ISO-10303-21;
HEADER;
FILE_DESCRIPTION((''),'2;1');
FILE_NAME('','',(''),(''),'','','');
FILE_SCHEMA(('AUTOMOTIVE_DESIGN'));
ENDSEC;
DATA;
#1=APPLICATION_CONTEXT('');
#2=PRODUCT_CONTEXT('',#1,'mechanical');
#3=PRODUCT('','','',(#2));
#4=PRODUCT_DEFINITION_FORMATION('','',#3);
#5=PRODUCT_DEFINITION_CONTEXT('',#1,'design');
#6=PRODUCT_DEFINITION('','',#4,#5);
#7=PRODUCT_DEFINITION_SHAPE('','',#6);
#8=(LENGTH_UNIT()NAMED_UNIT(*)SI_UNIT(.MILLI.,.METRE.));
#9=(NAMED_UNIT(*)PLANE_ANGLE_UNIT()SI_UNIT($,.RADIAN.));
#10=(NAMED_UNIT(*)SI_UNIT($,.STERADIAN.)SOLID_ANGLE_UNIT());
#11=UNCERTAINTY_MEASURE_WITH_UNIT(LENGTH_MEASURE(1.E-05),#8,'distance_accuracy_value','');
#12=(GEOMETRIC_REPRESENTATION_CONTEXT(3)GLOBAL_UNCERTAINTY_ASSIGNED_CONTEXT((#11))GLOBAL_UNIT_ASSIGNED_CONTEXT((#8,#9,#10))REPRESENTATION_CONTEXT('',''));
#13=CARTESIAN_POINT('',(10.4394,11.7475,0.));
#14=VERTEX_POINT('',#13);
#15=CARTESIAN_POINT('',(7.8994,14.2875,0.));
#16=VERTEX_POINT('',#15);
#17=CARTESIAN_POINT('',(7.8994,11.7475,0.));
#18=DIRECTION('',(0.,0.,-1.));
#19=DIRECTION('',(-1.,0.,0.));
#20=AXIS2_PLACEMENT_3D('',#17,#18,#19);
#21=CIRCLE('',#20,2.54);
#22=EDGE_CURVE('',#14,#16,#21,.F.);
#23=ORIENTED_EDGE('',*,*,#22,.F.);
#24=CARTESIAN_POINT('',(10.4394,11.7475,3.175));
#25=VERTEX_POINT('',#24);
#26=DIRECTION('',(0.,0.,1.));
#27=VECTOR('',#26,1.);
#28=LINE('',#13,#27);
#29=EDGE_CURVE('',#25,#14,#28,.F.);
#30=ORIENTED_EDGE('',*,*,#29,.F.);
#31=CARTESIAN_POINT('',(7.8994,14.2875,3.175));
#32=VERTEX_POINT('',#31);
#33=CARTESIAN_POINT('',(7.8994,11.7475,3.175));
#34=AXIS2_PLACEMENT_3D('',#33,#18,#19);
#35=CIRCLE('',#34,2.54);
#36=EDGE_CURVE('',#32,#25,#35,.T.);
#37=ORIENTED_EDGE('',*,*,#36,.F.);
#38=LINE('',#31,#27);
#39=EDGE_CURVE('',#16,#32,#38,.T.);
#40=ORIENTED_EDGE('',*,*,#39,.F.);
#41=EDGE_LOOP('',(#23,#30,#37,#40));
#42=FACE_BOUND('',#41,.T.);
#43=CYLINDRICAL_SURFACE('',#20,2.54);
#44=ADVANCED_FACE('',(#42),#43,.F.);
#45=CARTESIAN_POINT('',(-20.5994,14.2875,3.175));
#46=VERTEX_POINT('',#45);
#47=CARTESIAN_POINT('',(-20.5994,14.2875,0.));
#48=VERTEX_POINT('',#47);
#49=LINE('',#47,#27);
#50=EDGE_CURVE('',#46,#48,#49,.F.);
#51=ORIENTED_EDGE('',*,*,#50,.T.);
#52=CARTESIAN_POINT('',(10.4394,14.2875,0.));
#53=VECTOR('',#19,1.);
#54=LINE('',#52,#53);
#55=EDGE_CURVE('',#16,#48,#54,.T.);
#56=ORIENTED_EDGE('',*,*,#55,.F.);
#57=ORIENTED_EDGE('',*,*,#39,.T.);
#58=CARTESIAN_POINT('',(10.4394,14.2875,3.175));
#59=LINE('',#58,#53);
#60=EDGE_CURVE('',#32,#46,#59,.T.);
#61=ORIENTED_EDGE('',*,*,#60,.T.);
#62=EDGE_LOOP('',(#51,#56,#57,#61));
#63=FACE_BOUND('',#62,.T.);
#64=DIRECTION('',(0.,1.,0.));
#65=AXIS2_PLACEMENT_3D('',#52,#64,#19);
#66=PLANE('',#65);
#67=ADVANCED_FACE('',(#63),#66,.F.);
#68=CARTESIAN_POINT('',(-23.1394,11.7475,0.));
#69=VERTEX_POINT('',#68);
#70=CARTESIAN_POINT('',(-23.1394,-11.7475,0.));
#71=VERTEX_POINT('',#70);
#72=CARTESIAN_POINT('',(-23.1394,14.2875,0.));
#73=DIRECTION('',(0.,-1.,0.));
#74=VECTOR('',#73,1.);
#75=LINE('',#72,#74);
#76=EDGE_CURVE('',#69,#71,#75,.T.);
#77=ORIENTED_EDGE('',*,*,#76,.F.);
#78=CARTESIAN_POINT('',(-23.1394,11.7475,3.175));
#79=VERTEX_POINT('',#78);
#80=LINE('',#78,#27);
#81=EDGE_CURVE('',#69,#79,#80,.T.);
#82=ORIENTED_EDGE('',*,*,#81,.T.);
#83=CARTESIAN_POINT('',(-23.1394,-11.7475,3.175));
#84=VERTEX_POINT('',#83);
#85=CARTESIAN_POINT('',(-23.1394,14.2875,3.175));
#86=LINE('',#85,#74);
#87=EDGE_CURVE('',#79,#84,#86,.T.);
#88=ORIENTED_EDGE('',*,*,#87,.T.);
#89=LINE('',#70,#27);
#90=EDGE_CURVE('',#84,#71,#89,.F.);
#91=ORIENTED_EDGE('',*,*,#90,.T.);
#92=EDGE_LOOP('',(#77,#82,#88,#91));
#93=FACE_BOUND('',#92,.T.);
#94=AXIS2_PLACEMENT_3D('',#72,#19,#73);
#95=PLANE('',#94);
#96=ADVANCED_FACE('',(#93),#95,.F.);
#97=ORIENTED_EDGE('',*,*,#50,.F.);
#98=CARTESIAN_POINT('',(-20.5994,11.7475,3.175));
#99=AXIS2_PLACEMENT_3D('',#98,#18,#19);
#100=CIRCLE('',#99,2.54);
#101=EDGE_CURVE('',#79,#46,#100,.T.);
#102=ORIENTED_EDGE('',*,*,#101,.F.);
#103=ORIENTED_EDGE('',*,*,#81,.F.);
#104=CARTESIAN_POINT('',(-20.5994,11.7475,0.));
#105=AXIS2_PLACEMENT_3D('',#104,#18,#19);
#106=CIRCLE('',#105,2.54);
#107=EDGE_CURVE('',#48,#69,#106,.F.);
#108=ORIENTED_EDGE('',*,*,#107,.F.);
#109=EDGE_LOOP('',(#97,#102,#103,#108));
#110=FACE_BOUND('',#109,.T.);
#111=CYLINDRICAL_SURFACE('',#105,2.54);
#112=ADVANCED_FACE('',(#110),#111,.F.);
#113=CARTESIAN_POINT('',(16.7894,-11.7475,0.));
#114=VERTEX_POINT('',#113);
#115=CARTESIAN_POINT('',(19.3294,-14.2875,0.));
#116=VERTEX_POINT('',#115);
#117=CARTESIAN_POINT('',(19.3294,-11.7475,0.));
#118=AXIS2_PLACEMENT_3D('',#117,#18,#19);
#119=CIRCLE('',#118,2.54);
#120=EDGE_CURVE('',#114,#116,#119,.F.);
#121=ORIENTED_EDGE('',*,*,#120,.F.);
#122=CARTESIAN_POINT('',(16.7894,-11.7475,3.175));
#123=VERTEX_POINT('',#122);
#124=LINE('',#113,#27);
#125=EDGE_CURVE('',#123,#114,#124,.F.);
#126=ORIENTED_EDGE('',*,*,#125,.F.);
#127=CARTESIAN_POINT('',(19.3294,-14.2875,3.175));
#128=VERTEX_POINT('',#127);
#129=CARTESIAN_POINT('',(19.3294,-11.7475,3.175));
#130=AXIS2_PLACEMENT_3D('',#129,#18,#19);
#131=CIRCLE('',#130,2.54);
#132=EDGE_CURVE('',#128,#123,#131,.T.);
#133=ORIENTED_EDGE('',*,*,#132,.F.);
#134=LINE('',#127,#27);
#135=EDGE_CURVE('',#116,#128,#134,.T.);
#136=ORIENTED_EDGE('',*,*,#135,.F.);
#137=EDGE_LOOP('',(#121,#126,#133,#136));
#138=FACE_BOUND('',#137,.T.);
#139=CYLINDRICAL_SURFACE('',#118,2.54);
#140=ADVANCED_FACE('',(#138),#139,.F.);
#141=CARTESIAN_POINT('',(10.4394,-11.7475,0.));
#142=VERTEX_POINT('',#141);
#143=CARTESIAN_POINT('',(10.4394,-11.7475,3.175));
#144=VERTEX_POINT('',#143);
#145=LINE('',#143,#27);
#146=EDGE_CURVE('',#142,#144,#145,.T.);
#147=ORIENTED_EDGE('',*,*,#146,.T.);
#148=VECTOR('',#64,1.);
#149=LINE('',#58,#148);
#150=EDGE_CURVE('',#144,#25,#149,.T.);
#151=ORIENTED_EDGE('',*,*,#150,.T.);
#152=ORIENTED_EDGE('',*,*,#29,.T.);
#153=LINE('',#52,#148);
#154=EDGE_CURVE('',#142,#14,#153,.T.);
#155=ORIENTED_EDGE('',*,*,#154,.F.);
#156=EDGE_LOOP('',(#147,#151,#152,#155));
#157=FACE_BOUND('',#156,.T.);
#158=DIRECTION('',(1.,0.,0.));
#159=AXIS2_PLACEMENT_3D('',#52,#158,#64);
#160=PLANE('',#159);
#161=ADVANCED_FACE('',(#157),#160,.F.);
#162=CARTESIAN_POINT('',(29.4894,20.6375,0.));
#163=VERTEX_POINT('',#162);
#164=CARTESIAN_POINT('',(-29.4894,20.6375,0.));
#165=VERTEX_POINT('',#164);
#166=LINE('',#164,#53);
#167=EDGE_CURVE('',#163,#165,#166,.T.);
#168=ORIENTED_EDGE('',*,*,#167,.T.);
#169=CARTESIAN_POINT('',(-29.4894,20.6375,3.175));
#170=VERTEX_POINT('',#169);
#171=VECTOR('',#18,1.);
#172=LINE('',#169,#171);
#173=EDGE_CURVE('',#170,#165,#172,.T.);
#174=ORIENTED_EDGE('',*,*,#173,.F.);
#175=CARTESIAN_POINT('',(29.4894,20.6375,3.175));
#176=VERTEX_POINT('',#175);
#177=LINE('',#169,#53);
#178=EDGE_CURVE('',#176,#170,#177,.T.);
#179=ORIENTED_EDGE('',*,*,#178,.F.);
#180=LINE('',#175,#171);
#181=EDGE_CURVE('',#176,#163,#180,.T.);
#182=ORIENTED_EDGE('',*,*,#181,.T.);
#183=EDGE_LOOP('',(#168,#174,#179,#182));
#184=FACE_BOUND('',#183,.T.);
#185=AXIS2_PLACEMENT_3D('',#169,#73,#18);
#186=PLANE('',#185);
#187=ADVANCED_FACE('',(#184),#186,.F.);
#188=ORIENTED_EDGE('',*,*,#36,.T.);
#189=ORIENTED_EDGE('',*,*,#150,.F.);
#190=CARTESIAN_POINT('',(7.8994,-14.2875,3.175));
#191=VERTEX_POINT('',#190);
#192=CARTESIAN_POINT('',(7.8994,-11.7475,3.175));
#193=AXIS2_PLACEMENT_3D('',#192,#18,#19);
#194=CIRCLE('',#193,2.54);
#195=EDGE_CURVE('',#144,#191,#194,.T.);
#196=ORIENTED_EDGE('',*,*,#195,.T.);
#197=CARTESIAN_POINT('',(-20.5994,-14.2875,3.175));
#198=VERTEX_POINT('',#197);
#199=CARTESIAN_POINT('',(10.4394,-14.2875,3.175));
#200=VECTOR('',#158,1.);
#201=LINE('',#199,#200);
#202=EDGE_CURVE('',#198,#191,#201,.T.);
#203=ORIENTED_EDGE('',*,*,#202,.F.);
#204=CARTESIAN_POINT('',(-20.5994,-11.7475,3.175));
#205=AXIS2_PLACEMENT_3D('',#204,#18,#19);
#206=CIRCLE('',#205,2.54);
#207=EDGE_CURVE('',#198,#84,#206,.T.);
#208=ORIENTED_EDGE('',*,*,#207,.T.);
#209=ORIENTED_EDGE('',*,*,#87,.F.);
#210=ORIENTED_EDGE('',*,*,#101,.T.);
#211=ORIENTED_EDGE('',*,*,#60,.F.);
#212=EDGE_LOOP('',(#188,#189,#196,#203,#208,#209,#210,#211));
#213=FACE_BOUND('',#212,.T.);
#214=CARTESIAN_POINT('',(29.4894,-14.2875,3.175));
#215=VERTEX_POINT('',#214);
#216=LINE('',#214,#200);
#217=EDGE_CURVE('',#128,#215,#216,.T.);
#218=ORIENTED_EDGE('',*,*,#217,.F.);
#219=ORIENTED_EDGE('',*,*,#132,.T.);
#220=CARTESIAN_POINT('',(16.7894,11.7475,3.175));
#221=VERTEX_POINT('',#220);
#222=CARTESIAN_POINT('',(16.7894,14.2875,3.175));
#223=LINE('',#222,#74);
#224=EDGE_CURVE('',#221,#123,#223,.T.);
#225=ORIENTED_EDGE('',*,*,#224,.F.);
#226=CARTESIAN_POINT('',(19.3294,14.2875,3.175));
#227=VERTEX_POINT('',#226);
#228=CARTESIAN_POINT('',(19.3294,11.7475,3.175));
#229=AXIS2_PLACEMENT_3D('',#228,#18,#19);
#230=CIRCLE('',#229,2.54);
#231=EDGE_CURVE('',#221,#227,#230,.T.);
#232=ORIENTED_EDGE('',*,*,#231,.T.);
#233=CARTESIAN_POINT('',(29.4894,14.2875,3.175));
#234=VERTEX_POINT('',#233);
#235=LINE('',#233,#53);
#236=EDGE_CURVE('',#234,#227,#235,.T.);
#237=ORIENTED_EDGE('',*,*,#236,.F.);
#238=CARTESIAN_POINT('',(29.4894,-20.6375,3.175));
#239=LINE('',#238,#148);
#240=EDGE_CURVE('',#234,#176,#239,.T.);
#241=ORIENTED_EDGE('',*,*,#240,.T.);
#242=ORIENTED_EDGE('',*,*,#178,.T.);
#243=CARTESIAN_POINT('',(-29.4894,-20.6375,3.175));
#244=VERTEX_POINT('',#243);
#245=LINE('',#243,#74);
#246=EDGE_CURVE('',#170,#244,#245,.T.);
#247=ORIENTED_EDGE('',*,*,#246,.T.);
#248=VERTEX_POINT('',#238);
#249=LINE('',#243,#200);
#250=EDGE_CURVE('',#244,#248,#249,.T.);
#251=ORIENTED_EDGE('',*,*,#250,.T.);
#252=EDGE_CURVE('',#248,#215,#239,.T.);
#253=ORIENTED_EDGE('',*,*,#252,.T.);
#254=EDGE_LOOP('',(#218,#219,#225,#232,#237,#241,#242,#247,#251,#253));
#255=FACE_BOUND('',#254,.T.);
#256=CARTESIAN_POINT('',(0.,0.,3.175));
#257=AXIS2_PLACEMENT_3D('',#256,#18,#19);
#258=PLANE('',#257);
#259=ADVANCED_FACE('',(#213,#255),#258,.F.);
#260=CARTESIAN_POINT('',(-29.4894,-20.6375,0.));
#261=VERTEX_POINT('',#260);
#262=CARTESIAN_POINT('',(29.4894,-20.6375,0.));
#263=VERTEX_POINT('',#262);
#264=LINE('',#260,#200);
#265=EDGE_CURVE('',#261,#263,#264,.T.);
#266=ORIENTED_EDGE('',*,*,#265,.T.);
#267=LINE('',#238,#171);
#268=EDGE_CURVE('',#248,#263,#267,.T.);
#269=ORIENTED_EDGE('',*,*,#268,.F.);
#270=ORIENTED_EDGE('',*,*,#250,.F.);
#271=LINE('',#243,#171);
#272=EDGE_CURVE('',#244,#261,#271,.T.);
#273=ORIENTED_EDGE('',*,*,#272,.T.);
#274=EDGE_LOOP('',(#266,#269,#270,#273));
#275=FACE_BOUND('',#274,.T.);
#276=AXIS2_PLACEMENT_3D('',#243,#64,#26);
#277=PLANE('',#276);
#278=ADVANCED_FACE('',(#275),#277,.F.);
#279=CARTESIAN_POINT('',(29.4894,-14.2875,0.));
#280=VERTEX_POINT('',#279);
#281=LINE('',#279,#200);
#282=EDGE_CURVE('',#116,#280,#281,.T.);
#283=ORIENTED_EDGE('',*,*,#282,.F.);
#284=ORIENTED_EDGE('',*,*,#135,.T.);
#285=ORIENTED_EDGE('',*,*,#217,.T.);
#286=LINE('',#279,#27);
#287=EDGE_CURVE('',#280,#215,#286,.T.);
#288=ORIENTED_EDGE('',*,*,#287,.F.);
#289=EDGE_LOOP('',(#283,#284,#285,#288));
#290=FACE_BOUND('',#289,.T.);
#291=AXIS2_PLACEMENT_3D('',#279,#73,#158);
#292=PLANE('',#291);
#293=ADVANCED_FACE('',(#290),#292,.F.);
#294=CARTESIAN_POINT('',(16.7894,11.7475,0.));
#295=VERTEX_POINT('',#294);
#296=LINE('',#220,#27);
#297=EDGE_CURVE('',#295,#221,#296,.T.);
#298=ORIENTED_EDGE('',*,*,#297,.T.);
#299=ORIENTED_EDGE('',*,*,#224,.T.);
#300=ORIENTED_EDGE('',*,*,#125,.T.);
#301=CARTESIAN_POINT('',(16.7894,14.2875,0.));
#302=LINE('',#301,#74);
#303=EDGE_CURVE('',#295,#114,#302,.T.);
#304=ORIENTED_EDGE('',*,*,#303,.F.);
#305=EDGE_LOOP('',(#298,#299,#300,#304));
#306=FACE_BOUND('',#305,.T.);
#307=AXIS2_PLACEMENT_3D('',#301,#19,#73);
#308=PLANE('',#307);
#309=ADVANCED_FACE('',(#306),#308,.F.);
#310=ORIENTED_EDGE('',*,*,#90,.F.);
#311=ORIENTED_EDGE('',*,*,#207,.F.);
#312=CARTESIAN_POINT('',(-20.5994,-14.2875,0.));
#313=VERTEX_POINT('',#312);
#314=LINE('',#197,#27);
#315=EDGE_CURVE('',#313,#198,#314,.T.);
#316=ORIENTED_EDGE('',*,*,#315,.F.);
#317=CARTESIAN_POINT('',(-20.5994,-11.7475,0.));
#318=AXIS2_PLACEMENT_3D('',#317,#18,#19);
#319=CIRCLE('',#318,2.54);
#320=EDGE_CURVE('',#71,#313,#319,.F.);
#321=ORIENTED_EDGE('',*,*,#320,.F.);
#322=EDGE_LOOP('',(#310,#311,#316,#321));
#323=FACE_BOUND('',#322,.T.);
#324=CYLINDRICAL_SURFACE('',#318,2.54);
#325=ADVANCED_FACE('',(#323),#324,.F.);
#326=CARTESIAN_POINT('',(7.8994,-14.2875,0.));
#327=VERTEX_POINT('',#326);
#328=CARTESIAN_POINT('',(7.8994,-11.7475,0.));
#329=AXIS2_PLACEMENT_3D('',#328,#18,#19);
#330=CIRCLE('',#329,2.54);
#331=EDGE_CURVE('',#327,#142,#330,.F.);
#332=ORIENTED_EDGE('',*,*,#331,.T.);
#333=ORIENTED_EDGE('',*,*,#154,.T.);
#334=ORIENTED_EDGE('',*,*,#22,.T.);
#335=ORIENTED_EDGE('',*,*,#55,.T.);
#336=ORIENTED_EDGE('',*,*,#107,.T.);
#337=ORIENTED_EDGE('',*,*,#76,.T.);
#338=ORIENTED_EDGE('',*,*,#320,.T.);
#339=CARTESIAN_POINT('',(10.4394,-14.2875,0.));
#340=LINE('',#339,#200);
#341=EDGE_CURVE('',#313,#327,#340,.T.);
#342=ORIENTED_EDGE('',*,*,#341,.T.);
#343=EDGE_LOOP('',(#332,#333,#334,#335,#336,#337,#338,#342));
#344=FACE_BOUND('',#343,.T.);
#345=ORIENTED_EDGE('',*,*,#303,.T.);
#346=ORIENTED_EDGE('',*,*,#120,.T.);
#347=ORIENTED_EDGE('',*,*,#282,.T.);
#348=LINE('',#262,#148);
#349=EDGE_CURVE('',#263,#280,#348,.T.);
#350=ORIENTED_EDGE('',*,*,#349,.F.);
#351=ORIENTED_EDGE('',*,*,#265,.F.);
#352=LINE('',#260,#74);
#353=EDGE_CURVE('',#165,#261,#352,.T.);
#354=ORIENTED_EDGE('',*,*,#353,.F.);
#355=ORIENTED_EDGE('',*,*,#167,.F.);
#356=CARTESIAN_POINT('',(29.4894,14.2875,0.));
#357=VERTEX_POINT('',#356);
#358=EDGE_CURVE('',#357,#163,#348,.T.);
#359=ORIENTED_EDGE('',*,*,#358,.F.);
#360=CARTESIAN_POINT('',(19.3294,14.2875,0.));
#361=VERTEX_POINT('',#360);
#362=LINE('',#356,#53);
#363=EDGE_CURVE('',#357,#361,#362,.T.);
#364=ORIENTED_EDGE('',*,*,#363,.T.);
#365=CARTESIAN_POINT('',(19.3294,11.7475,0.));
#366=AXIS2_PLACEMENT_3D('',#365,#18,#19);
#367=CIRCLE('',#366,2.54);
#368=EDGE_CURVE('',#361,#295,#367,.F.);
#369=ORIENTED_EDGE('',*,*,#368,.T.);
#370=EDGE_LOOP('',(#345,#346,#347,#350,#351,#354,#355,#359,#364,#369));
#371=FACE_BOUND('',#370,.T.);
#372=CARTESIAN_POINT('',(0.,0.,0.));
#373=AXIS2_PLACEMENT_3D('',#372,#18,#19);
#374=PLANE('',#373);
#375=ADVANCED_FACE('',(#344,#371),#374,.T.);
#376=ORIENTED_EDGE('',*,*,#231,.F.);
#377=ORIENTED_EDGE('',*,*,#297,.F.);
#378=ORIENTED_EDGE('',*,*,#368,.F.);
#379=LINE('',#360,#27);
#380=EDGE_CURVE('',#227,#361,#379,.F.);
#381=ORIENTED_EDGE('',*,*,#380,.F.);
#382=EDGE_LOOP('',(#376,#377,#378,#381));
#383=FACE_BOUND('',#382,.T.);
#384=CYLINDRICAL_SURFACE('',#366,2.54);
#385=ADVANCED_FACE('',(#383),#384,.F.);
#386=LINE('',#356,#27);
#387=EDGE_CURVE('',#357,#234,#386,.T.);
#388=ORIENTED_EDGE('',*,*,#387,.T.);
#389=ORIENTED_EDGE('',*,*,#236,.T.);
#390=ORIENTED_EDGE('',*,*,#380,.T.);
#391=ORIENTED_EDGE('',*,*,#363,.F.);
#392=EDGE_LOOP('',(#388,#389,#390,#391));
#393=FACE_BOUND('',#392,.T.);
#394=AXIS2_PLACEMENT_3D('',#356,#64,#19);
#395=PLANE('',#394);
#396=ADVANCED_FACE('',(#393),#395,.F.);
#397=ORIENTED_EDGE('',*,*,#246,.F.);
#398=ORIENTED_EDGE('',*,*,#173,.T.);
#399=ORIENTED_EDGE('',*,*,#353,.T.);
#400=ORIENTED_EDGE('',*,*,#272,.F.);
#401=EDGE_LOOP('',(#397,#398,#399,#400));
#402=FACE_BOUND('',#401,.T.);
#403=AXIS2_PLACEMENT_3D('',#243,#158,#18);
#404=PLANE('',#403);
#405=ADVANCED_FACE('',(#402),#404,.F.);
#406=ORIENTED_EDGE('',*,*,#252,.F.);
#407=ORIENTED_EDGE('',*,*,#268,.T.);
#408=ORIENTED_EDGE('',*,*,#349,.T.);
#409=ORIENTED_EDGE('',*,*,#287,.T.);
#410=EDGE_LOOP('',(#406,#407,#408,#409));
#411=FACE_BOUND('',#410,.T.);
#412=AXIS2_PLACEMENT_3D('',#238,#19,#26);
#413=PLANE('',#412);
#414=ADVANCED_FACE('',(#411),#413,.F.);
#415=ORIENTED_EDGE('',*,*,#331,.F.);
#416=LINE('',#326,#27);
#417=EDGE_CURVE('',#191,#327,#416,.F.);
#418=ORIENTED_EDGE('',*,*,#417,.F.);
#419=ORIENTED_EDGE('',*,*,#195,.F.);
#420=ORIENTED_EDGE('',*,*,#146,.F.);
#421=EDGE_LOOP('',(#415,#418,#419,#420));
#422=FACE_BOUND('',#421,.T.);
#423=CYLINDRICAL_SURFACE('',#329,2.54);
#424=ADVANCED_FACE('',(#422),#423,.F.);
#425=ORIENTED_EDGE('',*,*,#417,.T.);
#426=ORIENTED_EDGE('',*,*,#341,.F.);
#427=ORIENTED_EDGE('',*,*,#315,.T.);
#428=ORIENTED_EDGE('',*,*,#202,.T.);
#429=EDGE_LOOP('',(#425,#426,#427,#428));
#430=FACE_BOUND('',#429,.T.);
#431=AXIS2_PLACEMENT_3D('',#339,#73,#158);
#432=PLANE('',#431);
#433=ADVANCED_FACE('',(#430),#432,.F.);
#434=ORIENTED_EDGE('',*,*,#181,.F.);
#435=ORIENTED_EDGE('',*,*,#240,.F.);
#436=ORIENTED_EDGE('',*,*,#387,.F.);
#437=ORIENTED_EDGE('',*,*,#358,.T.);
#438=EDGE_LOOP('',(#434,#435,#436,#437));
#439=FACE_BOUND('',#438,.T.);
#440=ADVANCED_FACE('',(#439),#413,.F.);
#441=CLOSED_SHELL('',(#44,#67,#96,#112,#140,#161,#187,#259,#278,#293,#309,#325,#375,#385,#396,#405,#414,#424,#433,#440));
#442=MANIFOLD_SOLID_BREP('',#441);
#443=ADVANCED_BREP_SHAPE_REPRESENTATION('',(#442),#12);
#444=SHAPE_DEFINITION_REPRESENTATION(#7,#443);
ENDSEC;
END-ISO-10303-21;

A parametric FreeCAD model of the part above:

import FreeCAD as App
import Part
import Sketcher
from FreeCAD import Vector
Q = App.Units.Quantity


def edges_at(feature, points):
    """Names of the edges that pass closest to the given points."""
    edges = feature.Shape.Edges
    near = lambda p: min(range(len(edges)), key=lambda i: edges[i].distToShape(Part.Vertex(*p))[0])
    return sorted({f"Edge{near(p) + 1}" for p in points})

doc = App.newDocument("Part")
body = doc.addObject("PartDesign::Body", "Body")

# Sketch on XY plane
sketch1 = body.newObject("Sketcher::SketchObject", "Sketch")
sketch1.AttachmentSupport = (doc.getObject("XY_Plane"), [""])
sketch1.MapMode = "FlatFace"
sketch1.addGeometry([
    Part.LineSegment(Vector(-29, 21, 0), Vector(-29, -21, 0)),
    Part.LineSegment(Vector(-29, -21, 0), Vector(29, -21, 0)),
    Part.LineSegment(Vector(29, -21, 0), Vector(29, 21, 0)),
    Part.LineSegment(Vector(29, 21, 0), Vector(-29, 21, 0)),
], False)
sketch1.addConstraint([
    Sketcher.Constraint("Coincident", 0, 2, 1, 1),
    Sketcher.Constraint("Coincident", 1, 2, 2, 1),
    Sketcher.Constraint("Coincident", 2, 2, 3, 1),
    Sketcher.Constraint("Coincident", 3, 2, 0, 1),
    Sketcher.Constraint("Vertical", 0),
    Sketcher.Constraint("Horizontal", 1),
    Sketcher.Constraint("Vertical", 2),
    Sketcher.Constraint("Horizontal", 3),
    Sketcher.Constraint("Symmetric", 0, 2, 2, 2, -1, 1),
    Sketcher.Constraint("DistanceX", 1, 1, 1, 2, Q("2.322 in")),
    Sketcher.Constraint("DistanceY", 0, 2, 0, 1, Q("1.625 in")),
])
pad1 = body.newObject("PartDesign::Pad", "Pad")
pad1.Profile = sketch1
pad1.Length = Q("0.125 in")

# Sketch on XY plane
sketch2 = body.newObject("Sketcher::SketchObject", "Sketch001")
sketch2.AttachmentSupport = (doc.getObject("XY_Plane"), [""])
sketch2.MapMode = "FlatFace"
sketch2.AttachmentOffset = App.Placement(Vector(0, 0, 0.125 * 25.4), App.Rotation())
sketch2.addGeometry([
    Part.LineSegment(Vector(17, 14, 0), Vector(17, -14, 0)),  # 0
    Part.LineSegment(Vector(17, -14, 0), Vector(29, -14, 0)),  # 1
    Part.LineSegment(Vector(29, -14, 0), Vector(29, 14, 0)),  # 2
    Part.LineSegment(Vector(29, 14, 0), Vector(17, 14, 0)),  # 3
    Part.LineSegment(Vector(-23, 14, 0), Vector(-23, -14, 0)),  # 4
    Part.LineSegment(Vector(-23, -14, 0), Vector(10, -14, 0)),  # 5
    Part.LineSegment(Vector(10, -14, 0), Vector(10, 14, 0)),  # 6
    Part.LineSegment(Vector(10, 14, 0), Vector(-23, 14, 0)),  # 7
], False)
sketch2.addConstraint([
    Sketcher.Constraint("Coincident", 0, 2, 1, 1),
    Sketcher.Constraint("Coincident", 1, 2, 2, 1),
    Sketcher.Constraint("Coincident", 2, 2, 3, 1),
    Sketcher.Constraint("Coincident", 3, 2, 0, 1),
    Sketcher.Constraint("Coincident", 4, 2, 5, 1),
    Sketcher.Constraint("Coincident", 5, 2, 6, 1),
    Sketcher.Constraint("Coincident", 6, 2, 7, 1),
    Sketcher.Constraint("Coincident", 7, 2, 4, 1),
    Sketcher.Constraint("Vertical", 0),
    Sketcher.Constraint("Horizontal", 1),
    Sketcher.Constraint("Vertical", 2),
    Sketcher.Constraint("Horizontal", 3),
    Sketcher.Constraint("Vertical", 4),
    Sketcher.Constraint("Horizontal", 5),
    Sketcher.Constraint("Vertical", 6),
    Sketcher.Constraint("Horizontal", 7),
    Sketcher.Constraint("Horizontal", 1, 2, 4, 2),
    Sketcher.Constraint("Horizontal", 3, 2, 6, 2),
    Sketcher.Constraint("DistanceX", 1, 1, 1, 2, Q("0.5 in")),
    Sketcher.Constraint("DistanceX", 5, 1, 5, 2, Q("1.322 in")),
    Sketcher.Constraint("DistanceY", 0, 2, 0, 1, Q("1.125 in")),
    Sketcher.Constraint("DistanceX", 5, 2, 0, 2, Q("0.25 in")),
    Sketcher.Constraint("DistanceX", -1, 1, 0, 2, Q("0.661 in")),
    Sketcher.Constraint("DistanceY", 0, 2, -1, 1, Q("0.5625 in")),
])
pocket1 = body.newObject("PartDesign::Pocket", "Pocket")
pocket1.Profile = sketch2
pocket1.Type = "ThroughAll"
doc.recompute()

fillet = body.newObject("PartDesign::Fillet", "Fillet")
fillet.Base = (pocket1, edges_at(pocket1, [
    (16.789, -14.287, 1.587),
    (16.789, 14.287, 1.587),
    (10.439, 14.287, 1.587),
    (10.439, -14.287, 1.587),
    (-23.139, -14.287, 1.587),
    (-23.139, 14.287, 1.587),
]))
fillet.Radius = Q("0.1 in")

doc.recompute()
